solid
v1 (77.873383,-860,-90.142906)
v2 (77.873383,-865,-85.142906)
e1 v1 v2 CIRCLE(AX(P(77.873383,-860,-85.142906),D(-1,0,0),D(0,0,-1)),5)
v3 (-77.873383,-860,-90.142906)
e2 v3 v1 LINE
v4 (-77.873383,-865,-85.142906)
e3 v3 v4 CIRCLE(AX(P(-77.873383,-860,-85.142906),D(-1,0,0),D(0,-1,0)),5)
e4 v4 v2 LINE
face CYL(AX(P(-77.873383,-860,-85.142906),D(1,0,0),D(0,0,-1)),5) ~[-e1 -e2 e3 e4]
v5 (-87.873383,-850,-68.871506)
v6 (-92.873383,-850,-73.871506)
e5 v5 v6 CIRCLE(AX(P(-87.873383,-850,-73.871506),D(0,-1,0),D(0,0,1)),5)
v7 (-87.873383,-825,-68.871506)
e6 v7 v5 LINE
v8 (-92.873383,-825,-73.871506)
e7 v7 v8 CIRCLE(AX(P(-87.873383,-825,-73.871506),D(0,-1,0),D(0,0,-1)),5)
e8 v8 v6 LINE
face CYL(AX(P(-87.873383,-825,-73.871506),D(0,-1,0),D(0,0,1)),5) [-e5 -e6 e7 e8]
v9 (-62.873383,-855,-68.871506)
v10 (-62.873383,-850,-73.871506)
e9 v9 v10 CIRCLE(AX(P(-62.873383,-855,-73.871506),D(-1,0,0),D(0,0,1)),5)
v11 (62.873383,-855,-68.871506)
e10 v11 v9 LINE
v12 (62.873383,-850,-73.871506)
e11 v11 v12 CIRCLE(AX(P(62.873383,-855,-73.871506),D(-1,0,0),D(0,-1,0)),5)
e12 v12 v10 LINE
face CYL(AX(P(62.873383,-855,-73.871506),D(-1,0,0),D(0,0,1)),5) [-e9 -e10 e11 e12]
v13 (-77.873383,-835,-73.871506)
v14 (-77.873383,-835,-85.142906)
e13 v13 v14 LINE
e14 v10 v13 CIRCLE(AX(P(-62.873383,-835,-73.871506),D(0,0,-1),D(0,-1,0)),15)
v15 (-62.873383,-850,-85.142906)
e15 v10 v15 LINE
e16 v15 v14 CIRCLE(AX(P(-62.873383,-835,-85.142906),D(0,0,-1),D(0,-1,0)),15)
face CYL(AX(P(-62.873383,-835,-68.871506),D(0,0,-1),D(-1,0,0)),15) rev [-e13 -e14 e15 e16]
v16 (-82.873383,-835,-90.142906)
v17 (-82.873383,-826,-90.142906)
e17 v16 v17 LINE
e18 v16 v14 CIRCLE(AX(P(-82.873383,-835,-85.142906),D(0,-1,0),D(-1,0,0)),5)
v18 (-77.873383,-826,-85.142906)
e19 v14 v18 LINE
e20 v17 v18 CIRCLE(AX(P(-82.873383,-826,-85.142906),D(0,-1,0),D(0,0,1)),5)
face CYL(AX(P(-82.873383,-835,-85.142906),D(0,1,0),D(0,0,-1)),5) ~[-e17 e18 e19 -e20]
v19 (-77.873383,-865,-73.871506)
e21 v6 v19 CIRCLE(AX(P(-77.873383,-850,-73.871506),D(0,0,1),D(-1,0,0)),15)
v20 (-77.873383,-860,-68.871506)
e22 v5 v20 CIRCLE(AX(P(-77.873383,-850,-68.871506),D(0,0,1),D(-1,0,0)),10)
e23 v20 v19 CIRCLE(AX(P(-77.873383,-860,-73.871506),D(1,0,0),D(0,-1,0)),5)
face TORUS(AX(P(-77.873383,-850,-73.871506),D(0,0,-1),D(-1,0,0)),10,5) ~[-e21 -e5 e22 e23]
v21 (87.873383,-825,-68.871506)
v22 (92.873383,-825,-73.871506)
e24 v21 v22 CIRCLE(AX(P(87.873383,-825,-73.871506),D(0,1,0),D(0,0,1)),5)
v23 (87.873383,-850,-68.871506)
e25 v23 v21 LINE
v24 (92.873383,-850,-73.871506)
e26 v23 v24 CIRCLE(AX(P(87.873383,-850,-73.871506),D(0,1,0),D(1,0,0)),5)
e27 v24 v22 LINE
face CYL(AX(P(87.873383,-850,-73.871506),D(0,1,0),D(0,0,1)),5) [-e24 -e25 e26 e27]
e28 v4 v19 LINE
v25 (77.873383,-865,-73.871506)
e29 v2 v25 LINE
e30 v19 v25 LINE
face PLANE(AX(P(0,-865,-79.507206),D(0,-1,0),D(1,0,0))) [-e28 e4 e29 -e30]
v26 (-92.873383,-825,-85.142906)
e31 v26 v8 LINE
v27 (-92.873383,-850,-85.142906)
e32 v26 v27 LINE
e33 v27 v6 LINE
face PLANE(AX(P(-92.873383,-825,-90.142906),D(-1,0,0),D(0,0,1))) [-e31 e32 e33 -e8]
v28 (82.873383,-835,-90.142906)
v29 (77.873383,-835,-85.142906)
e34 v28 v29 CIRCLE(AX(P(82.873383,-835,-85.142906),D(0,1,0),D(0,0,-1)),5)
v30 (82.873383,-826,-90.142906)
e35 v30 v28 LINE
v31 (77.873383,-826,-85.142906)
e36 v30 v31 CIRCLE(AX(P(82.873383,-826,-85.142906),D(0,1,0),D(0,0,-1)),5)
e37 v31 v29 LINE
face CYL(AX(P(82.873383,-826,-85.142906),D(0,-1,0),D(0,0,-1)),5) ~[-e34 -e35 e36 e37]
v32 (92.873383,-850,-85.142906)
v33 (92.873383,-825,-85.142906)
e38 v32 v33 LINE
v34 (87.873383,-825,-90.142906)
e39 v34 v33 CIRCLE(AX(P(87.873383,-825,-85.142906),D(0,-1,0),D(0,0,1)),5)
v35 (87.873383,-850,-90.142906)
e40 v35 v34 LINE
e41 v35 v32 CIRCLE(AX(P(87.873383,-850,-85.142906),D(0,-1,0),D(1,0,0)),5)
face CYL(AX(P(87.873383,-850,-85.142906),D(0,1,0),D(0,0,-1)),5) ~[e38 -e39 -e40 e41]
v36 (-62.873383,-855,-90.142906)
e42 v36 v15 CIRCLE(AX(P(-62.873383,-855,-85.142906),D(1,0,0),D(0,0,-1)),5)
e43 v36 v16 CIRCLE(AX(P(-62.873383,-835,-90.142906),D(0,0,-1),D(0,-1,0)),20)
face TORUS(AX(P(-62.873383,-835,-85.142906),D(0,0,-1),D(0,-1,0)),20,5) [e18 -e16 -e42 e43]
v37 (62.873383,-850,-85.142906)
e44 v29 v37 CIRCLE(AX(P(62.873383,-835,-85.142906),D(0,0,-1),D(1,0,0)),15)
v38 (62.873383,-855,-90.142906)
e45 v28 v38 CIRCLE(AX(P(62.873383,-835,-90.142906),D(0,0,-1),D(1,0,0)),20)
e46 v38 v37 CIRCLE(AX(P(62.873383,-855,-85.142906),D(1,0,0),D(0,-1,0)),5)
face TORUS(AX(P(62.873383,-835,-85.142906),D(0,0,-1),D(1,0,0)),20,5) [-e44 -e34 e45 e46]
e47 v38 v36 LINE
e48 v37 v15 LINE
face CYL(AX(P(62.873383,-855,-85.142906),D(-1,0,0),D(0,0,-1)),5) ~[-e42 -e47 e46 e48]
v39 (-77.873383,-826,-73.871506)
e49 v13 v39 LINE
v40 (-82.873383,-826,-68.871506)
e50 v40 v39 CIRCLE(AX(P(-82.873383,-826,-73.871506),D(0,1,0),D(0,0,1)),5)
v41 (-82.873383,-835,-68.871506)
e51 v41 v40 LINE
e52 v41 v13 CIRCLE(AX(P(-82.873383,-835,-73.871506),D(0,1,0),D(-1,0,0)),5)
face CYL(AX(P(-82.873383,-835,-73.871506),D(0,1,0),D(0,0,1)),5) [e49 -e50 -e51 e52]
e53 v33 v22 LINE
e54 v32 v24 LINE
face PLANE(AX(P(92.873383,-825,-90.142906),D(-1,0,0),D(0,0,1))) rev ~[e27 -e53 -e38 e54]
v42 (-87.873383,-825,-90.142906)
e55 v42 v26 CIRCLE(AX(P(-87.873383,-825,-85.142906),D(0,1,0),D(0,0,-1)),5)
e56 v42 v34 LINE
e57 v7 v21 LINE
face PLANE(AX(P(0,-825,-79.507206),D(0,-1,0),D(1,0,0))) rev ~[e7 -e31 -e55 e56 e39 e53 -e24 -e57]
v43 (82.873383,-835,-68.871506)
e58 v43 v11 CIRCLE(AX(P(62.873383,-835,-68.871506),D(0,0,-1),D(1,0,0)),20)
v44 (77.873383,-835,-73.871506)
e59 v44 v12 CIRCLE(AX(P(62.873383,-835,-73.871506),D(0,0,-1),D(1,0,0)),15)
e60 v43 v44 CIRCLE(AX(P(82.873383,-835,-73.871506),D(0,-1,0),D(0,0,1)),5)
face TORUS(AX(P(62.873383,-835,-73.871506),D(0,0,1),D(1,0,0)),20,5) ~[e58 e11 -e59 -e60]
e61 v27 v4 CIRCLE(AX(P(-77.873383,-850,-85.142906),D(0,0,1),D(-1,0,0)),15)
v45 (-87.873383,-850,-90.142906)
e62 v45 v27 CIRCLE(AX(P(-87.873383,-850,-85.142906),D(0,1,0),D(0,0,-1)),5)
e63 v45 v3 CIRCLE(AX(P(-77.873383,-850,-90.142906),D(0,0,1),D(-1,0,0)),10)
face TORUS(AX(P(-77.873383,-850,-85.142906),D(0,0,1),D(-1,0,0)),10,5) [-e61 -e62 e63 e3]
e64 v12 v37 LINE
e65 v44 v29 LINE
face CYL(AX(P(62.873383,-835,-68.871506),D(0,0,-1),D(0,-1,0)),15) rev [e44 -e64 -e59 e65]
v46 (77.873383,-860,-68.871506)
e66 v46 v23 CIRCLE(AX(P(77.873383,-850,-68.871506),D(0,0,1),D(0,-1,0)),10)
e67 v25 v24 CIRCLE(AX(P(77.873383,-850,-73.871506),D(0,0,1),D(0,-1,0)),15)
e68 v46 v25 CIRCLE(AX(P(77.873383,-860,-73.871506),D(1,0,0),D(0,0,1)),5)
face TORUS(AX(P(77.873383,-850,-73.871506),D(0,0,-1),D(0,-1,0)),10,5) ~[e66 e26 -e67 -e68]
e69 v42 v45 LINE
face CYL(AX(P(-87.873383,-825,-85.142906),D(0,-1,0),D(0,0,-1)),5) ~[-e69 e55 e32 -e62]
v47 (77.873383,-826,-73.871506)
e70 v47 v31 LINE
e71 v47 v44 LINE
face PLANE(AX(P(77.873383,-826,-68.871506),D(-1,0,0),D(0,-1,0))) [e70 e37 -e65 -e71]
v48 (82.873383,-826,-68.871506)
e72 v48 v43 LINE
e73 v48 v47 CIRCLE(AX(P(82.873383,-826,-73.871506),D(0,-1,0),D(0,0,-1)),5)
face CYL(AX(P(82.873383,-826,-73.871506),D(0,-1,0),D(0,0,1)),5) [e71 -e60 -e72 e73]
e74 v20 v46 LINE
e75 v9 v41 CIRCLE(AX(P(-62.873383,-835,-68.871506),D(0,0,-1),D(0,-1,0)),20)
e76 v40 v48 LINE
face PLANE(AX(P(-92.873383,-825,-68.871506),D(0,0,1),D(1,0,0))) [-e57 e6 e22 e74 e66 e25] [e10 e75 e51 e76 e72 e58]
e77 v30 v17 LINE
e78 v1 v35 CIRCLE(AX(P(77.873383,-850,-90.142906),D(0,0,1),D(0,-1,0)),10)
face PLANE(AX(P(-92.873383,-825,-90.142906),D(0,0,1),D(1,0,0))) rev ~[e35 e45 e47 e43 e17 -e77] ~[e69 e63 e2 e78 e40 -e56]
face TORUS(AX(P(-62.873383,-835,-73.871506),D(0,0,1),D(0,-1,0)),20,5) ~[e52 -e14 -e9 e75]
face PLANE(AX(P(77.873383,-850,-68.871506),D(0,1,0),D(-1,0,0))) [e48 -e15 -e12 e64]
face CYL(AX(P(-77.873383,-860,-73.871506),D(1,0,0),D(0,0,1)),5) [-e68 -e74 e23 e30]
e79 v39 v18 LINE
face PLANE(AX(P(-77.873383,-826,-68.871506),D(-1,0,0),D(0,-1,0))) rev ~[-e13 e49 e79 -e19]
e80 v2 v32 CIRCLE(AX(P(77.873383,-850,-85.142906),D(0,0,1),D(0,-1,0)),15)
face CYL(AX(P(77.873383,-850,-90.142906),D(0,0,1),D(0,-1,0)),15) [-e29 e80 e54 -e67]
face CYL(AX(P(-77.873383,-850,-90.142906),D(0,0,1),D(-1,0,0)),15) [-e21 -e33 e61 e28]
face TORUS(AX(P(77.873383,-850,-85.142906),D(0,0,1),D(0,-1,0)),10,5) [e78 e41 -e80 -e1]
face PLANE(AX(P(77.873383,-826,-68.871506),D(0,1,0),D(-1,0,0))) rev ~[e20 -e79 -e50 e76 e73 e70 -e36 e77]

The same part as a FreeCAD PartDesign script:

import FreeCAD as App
import Part
import Sketcher
from FreeCAD import Vector
Q = App.Units.Quantity


def edges_at(feature, points):
    """Names of the edges that pass closest to the given points."""
    edges = feature.Shape.Edges
    near = lambda p: min(range(len(edges)), key=lambda i: edges[i].distToShape(Part.Vertex(*p))[0])
    return sorted({f"Edge{near(p) + 1}" for p in points})


def add_polygon(sketch, points):
    """Adds a closed chain of lines whose ends are joined by coincident constraints."""
    first, n = sketch.GeometryCount, len(points)
    for a, b in zip(points, points[1:] + points[:1]):
        sketch.addGeometry(Part.LineSegment(App.Vector(*a, 0), App.Vector(*b, 0)), False)
    for i in range(n):
        sketch.addConstraint(Sketcher.Constraint("Coincident", first + i, 2, first + (i + 1) % n, 1))

doc = App.newDocument("Part")
body = doc.addObject("PartDesign::Body", "Body")

# Sketch on XZ plane
sketch1 = body.newObject("Sketcher::SketchObject", "Sketch")
sketch1.AttachmentSupport = (doc.getObject("XZ_Plane"), [""])
sketch1.MapMode = "FlatFace"
sketch1.AttachmentOffset = App.Placement(Vector(0, 0, 825), App.Rotation())
add_polygon(sketch1, [(-92.873383, -68.871506), (-92.873383, -90.142906), (92.873383, -90.142906), (92.873383, -68.871506)])  # lines 0-3
sketch1.addConstraint([
    Sketcher.Constraint("Vertical", 0),
    Sketcher.Constraint("Horizontal", 1),
    Sketcher.Constraint("Vertical", 2),
    Sketcher.Constraint("Horizontal", 3),
    Sketcher.Constraint("DistanceY", 0, 2, 0, 1, Q("21.2714 mm")),
    Sketcher.Constraint("DistanceX", 1, 1, 1, 2, Q("185.746766 mm")),
    Sketcher.Constraint("DistanceX", 0, 2, -1, 1, Q("92.873383 mm")),
    Sketcher.Constraint("DistanceY", 0, 2, -1, 1, Q("90.142906 mm")),
])
pad1 = body.newObject("PartDesign::Pad", "Pad")
pad1.Profile = sketch1
pad1.Length = 40

# Sketch on XY plane
sketch2 = body.newObject("Sketcher::SketchObject", "Sketch001")
sketch2.AttachmentSupport = (doc.getObject("XY_Plane"), [""])
sketch2.MapMode = "FlatFace"
sketch2.AttachmentOffset = App.Placement(Vector(0, 0, -68.871506), App.Rotation())
add_polygon(sketch2, [(77.873383, -850), (77.873383, -826), (-77.873383, -826), (-77.873383, -850)])  # lines 0-3
sketch2.addConstraint([
    Sketcher.Constraint("Vertical", 0),
    Sketcher.Constraint("Horizontal", 1),
    Sketcher.Constraint("Vertical", 2),
    Sketcher.Constraint("Horizontal", 3),
    Sketcher.Constraint("DistanceY", 0, 1, 0, 2, Q("24 mm")),
    Sketcher.Constraint("DistanceY", 0, 2, -1, 1, Q("826 mm")),
    Sketcher.Constraint("DistanceX", 1, 2, 1, 1, Q("155.746766 mm")),
    Sketcher.Constraint("DistanceX", -1, 1, 0, 2, Q("77.873383 mm")),
])
pocket1 = body.newObject("PartDesign::Pocket", "Pocket")
pocket1.Profile = sketch2
pocket1.Type = "ThroughAll"
doc.recompute()

fillet = body.newObject("PartDesign::Fillet", "Fillet")
fillet.Base = (pocket1, edges_at(pocket1, [
    (77.873, -850, -79.507),
    (-77.873, -850, -79.507),
    (-92.873, -865, -79.507),
    (92.873, -865, -79.507),
]))
fillet.Radius = 15
doc.recompute()

fillet2 = body.newObject("PartDesign::Fillet", "Fillet001")
fillet2.Base = (fillet, edges_at(fillet, [
    (0, -865, -68.872),
    (0, -865, -90.143),
    (0, -850, -68.872),
    (0, -850, -90.143),
]))
fillet2.Radius = 5

doc.recompute()
